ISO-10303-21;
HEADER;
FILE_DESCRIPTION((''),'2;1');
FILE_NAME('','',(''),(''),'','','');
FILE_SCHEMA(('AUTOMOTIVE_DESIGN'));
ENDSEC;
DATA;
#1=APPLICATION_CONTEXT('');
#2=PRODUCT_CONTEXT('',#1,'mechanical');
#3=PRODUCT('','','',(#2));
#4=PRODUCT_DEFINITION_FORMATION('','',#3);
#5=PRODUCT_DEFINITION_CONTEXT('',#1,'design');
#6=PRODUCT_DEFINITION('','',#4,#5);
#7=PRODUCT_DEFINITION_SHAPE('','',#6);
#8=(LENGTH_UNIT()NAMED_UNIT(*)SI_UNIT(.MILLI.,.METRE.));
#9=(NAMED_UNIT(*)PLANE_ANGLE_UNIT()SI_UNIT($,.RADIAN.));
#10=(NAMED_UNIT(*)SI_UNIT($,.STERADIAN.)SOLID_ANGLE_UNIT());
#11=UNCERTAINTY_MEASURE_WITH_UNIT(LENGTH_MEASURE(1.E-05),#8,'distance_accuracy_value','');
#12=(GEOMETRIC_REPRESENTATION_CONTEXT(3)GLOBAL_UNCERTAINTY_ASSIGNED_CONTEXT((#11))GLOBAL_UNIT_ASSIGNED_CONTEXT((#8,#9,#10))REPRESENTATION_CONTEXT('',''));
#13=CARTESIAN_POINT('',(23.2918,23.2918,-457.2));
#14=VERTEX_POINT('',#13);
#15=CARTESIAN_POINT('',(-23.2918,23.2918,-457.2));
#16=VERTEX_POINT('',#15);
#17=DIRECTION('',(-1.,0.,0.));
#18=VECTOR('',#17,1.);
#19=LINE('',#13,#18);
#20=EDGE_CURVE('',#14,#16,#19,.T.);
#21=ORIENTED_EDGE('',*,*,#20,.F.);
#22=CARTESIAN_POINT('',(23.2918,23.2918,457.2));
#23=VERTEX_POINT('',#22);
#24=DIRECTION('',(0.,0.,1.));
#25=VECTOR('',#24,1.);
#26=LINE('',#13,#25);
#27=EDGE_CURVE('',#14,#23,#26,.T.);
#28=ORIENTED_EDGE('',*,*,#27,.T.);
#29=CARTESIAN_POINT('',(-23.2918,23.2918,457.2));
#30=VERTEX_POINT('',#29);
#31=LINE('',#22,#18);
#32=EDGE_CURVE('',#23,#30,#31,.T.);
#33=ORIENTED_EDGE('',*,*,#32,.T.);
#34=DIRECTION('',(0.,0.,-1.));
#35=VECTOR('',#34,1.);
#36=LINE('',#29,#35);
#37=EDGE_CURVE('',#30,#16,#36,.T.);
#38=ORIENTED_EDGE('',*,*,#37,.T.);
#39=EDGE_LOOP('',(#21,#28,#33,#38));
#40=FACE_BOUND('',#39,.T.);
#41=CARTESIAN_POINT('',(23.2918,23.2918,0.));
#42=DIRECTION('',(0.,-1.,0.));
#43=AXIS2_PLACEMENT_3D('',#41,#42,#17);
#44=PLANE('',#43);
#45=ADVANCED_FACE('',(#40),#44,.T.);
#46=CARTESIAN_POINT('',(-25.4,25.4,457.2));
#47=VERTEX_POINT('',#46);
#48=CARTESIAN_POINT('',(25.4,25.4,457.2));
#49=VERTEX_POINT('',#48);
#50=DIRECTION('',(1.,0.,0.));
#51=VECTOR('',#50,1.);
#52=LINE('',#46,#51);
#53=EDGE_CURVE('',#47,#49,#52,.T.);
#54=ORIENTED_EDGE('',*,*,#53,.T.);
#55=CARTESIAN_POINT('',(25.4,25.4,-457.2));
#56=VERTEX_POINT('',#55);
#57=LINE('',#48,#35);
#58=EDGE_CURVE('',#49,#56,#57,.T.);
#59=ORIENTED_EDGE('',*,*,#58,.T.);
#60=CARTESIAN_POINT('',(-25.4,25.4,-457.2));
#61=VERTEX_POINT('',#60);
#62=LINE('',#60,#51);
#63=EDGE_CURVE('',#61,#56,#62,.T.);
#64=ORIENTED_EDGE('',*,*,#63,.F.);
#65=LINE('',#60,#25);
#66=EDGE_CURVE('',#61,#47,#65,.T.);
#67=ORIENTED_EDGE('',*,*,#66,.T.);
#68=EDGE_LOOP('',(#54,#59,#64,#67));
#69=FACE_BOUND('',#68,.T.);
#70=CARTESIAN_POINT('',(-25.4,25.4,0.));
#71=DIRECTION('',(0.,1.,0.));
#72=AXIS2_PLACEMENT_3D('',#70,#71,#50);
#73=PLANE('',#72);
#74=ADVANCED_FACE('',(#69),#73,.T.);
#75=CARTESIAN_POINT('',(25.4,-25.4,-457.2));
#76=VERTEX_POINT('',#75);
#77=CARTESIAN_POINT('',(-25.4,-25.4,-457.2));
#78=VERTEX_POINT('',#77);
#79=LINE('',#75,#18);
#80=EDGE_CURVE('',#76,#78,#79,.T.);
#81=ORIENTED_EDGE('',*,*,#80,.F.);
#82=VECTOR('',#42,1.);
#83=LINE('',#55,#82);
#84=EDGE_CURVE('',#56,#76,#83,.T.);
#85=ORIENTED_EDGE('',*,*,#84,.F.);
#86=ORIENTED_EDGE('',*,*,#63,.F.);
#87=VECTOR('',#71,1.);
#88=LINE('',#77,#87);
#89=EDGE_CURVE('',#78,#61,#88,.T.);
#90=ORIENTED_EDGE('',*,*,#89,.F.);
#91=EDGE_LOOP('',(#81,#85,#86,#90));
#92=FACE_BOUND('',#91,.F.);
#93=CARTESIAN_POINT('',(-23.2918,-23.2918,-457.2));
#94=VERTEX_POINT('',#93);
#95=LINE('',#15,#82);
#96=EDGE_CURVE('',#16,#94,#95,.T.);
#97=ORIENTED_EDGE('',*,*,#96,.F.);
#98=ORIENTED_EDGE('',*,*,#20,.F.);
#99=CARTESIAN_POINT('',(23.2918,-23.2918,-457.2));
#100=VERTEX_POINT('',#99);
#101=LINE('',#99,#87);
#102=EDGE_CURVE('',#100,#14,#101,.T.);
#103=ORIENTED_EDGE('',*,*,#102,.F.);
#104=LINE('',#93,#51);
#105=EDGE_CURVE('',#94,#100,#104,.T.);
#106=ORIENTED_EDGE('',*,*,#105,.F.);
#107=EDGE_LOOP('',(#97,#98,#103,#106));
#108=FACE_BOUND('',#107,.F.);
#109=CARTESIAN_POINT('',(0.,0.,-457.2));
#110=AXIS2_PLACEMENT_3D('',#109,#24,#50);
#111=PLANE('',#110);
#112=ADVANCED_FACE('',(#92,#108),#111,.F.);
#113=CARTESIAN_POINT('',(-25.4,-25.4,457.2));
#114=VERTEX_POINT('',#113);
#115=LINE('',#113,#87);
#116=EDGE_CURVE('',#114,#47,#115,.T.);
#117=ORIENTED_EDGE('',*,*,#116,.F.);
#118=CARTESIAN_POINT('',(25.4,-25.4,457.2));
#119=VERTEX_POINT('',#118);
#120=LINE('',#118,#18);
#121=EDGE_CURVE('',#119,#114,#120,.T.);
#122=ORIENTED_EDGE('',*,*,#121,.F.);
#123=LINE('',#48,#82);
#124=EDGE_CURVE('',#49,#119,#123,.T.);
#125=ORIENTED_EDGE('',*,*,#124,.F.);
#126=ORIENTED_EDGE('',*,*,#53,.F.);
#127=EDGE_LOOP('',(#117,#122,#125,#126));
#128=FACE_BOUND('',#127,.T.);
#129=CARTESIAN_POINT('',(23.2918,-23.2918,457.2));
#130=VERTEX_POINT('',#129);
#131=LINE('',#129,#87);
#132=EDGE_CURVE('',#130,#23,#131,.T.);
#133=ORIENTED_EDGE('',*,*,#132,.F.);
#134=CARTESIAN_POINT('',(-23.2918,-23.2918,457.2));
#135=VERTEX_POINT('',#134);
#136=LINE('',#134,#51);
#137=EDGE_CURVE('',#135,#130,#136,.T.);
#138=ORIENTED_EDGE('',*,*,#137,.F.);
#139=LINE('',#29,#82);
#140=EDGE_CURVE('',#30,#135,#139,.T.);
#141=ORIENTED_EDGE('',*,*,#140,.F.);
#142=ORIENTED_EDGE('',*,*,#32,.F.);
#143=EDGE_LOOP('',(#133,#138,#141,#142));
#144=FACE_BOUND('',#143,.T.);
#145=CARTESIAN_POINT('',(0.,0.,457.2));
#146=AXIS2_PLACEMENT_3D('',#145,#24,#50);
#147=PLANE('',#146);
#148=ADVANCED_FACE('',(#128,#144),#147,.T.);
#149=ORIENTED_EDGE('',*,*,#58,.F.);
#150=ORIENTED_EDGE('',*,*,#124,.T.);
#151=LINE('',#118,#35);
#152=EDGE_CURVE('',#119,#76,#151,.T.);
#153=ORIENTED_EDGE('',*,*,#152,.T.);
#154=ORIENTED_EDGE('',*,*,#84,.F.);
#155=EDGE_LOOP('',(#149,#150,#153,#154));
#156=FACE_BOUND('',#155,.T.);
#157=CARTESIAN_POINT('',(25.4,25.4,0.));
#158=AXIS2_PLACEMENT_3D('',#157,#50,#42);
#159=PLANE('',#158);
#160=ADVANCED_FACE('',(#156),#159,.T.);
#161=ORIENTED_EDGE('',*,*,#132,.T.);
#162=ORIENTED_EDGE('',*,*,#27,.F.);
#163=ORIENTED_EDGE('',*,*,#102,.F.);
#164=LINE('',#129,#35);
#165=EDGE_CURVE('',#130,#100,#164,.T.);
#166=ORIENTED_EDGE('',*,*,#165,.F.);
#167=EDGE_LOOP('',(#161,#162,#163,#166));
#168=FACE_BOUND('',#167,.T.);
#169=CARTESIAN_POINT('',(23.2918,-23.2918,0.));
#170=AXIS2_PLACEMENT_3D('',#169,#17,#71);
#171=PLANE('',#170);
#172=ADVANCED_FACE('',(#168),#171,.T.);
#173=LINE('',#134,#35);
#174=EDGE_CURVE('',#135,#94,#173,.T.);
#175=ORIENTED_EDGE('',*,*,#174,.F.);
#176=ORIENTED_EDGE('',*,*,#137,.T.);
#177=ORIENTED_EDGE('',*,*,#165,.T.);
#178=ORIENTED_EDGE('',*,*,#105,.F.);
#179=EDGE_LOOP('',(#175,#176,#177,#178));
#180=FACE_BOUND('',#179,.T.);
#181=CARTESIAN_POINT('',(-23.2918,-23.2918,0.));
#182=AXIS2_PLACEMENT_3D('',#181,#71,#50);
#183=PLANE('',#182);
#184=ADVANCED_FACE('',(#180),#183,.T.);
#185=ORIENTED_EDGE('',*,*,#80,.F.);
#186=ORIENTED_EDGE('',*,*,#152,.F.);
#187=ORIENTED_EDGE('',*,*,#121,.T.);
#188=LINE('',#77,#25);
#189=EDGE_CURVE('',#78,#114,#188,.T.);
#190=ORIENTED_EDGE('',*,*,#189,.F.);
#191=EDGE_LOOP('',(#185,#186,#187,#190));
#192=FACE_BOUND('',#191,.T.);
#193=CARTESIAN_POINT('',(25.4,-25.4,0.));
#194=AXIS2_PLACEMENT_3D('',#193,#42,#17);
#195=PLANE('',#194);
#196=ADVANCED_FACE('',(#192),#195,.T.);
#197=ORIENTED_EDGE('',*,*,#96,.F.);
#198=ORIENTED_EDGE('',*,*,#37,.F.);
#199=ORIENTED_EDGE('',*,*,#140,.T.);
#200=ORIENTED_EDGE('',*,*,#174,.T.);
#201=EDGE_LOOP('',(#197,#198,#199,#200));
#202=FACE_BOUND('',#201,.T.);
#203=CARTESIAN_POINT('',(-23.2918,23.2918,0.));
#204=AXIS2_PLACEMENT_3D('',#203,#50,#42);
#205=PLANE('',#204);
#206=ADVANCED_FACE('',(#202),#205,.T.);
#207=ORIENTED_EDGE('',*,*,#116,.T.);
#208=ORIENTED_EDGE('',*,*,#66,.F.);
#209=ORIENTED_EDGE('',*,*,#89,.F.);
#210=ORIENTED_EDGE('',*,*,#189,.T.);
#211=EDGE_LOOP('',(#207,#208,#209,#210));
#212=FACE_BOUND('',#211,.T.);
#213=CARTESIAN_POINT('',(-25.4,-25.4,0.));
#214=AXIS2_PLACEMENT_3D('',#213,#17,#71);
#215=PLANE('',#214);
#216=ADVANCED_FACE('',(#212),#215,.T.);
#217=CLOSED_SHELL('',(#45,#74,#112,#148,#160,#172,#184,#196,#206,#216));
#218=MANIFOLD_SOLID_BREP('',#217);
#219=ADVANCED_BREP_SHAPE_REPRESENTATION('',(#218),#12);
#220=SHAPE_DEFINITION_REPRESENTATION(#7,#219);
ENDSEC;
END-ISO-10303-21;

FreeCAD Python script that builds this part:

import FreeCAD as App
import Part
import Sketcher
from FreeCAD import Vector
Q = App.Units.Quantity

doc = App.newDocument("Part")
params = doc.addObject("Spreadsheet::Sheet", "Params")
for row, (alias, value) in enumerate([
    ("sketch1_width", "2 in"),
    ("pad1_length", "36 in"),
], start=1):
    params.set(f"A{row}", alias)
    params.set(f"B{row}", "=" + value)
    params.setAlias(f"B{row}", alias)

body = doc.addObject("PartDesign::Body", "Body")

# Sketch on XY plane
sketch1 = body.newObject("Sketcher::SketchObject", "Sketch")
sketch1.AttachmentSupport = (doc.getObject("XY_Plane"), [""])
sketch1.MapMode = "FlatFace"
sketch1.addGeometry([
    Part.LineSegment(Vector(25, 25, 0), Vector(-25, 25, 0)),  # 0
    Part.LineSegment(Vector(-25, 25, 0), Vector(-25, -25, 0)),  # 1
    Part.LineSegment(Vector(-25, -25, 0), Vector(25, -25, 0)),  # 2
    Part.LineSegment(Vector(25, -25, 0), Vector(25, 25, 0)),  # 3
    Part.LineSegment(Vector(-23, 23, 0), Vector(23, 23, 0)),  # 4
    Part.LineSegment(Vector(23, 23, 0), Vector(23, -23, 0)),  # 5
    Part.LineSegment(Vector(23, -23, 0), Vector(-23, -23, 0)),  # 6
    Part.LineSegment(Vector(-23, -23, 0), Vector(-23, 23, 0)),  # 7
], False)
sketch1.addConstraint([
    Sketcher.Constraint("Coincident", 0, 2, 1, 1),
    Sketcher.Constraint("Coincident", 1, 2, 2, 1),
    Sketcher.Constraint("Coincident", 2, 2, 3, 1),
    Sketcher.Constraint("Coincident", 3, 2, 0, 1),
    Sketcher.Constraint("Coincident", 4, 2, 5, 1),
    Sketcher.Constraint("Coincident", 5, 2, 6, 1),
    Sketcher.Constraint("Coincident", 6, 2, 7, 1),
    Sketcher.Constraint("Coincident", 7, 2, 4, 1),
    Sketcher.Constraint("Horizontal", 0),
    Sketcher.Constraint("Vertical", 1),
    Sketcher.Constraint("Horizontal", 2),
    Sketcher.Constraint("Vertical", 3),
    Sketcher.Constraint("Horizontal", 4),
    Sketcher.Constraint("Vertical", 5),
    Sketcher.Constraint("Horizontal", 6),
    Sketcher.Constraint("Vertical", 7),
    Sketcher.Constraint("Symmetric", 0, 2, 2, 2, -1, 1),
    Sketcher.Constraint("Symmetric", 4, 2, 6, 2, -1, 1),
    Sketcher.Constraint("Equal", 2, 1),
    Sketcher.Constraint("Equal", 6, 5),
    Sketcher.Constraint("DistanceX", 0, 2, 0, 1, Q("2 in")),
    Sketcher.Constraint("DistanceX", 4, 2, 3, 2, Q("0.083 in")),
])
sketch1.setExpression("Constraints[20]", "Params.sketch1_width")
pad1 = body.newObject("PartDesign::Pad", "Pad")
pad1.Profile = sketch1
pad1.setExpression("Length", "Params.pad1_length")
pad1.Midplane = True

doc.recompute()
